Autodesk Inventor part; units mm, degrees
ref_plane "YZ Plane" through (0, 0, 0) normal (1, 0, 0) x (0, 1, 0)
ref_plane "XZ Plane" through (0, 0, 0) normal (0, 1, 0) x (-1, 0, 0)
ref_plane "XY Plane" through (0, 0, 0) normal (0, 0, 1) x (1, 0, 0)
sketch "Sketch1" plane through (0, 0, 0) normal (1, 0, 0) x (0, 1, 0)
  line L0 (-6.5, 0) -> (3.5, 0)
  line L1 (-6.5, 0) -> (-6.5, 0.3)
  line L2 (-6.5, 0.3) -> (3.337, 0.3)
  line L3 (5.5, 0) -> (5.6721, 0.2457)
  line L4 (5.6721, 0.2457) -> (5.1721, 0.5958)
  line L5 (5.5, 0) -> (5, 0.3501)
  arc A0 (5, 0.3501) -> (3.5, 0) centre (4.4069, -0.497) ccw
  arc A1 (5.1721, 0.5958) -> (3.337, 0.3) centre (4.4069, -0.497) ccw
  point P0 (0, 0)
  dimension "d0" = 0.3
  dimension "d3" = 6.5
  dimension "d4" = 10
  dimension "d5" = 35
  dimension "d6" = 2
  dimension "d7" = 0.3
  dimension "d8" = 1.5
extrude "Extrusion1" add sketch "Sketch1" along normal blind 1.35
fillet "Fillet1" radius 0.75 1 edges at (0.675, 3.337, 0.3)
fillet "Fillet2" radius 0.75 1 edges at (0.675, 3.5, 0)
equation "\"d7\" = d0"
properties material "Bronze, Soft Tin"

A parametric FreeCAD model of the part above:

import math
import FreeCAD as App
import Part
import Sketcher
Q = App.Units.Quantity


def edges_at(feature, points):
    """Names of the edges that pass closest to the given points."""
    edges = feature.Shape.Edges
    near = lambda p: min(range(len(edges)), key=lambda i: edges[i].distToShape(Part.Vertex(*p))[0])
    return sorted({f"Edge{near(p) + 1}" for p in points})

doc = App.newDocument("Part")
body = doc.addObject("PartDesign::Body", "Body")

sketch1 = body.newObject("Sketcher::SketchObject", "Sketch")
sketch1.AttachmentSupport = (doc.getObject("YZ_Plane"), [""])
sketch1.MapMode = "FlatFace"
sketch1.addGeometry([
    Part.LineSegment(App.Vector(-6.5, 0.3, 0), App.Vector(-6.5, 0, 0)),
    Part.LineSegment(App.Vector(-6.5, 0, 0), App.Vector(3.5, 0, 0)),
    Part.ArcOfCircle(Part.Circle(App.Vector(4.41, -0.5, 0), App.Vector(0, 0, 1), 1.03), math.radians(55), math.radians(151)),
    Part.LineSegment(App.Vector(5, 0.35, 0), App.Vector(5.5, 0, 0)),
    Part.LineSegment(App.Vector(5.5, 0, 0), App.Vector(5.67, 0.25, 0)),
    Part.LineSegment(App.Vector(5.67, 0.25, 0), App.Vector(5.17, 0.6, 0)),
    Part.ArcOfCircle(Part.Circle(App.Vector(4.41, -0.5, 0), App.Vector(0, 0, 1), 1.33), math.radians(55), math.radians(143)),
    Part.LineSegment(App.Vector(3.34, 0.3, 0), App.Vector(-6.5, 0.3, 0)),
], False)
sketch1.addConstraint([
    Sketcher.Constraint("Coincident", 0, 2, 1, 1),
    Sketcher.Constraint("Coincident", 1, 2, 2, 2),
    Sketcher.Constraint("Tangent", 2, 1, 3, 1),
    Sketcher.Constraint("Coincident", 3, 2, 4, 1),
    Sketcher.Constraint("Coincident", 4, 2, 5, 1),
    Sketcher.Constraint("Tangent", 5, 2, 6, 1),
    Sketcher.Constraint("Coincident", 6, 2, 7, 1),
    Sketcher.Constraint("Coincident", 7, 2, 0, 1),
    Sketcher.Constraint("Vertical", 0),
    Sketcher.Constraint("Horizontal", 1),
    Sketcher.Constraint("Horizontal", 7),
    Sketcher.Constraint("Coincident", 6, 3, 2, 3),
    Sketcher.Constraint("PointOnObject", 0, 2, -1),
    Sketcher.Constraint("PointOnObject", 3, 2, -1),
    Sketcher.Constraint("Perpendicular", 3, 4),
    Sketcher.Constraint("Perpendicular", 4, 5),
    Sketcher.Constraint("DistanceX", 1, 1, 1, 2, 10.0),
    Sketcher.Constraint("Angle", 3, Q("-34.9997 deg")),
    Sketcher.Constraint("DistanceY", 0, 2, 0, 1, 0.3),
    Sketcher.Constraint("DistanceX", 1, 2, 3, 2, 2.0),
    Sketcher.Constraint("Distance", 4, 0.3),
    Sketcher.Constraint("DistanceX", 0, 2, -1, 1, 6.5),
    Sketcher.Constraint("DistanceX", 1, 2, 2, 1, 1.5),
])
pad1 = body.newObject("PartDesign::Pad", "Pad")
pad1.Profile = sketch1
pad1.Length = 1.35
doc.recompute()

fillet = body.newObject("PartDesign::Fillet", "Fillet")
fillet.Base = (pad1, edges_at(pad1, [(0.675, 3.337, 0.3)]))
fillet.Radius = 0.75
doc.recompute()

fillet2 = body.newObject("PartDesign::Fillet", "Fillet001")
fillet2.Base = (fillet, edges_at(fillet, [(0.675, 3.5, 0)]))
fillet2.Radius = 0.75

doc.recompute()
